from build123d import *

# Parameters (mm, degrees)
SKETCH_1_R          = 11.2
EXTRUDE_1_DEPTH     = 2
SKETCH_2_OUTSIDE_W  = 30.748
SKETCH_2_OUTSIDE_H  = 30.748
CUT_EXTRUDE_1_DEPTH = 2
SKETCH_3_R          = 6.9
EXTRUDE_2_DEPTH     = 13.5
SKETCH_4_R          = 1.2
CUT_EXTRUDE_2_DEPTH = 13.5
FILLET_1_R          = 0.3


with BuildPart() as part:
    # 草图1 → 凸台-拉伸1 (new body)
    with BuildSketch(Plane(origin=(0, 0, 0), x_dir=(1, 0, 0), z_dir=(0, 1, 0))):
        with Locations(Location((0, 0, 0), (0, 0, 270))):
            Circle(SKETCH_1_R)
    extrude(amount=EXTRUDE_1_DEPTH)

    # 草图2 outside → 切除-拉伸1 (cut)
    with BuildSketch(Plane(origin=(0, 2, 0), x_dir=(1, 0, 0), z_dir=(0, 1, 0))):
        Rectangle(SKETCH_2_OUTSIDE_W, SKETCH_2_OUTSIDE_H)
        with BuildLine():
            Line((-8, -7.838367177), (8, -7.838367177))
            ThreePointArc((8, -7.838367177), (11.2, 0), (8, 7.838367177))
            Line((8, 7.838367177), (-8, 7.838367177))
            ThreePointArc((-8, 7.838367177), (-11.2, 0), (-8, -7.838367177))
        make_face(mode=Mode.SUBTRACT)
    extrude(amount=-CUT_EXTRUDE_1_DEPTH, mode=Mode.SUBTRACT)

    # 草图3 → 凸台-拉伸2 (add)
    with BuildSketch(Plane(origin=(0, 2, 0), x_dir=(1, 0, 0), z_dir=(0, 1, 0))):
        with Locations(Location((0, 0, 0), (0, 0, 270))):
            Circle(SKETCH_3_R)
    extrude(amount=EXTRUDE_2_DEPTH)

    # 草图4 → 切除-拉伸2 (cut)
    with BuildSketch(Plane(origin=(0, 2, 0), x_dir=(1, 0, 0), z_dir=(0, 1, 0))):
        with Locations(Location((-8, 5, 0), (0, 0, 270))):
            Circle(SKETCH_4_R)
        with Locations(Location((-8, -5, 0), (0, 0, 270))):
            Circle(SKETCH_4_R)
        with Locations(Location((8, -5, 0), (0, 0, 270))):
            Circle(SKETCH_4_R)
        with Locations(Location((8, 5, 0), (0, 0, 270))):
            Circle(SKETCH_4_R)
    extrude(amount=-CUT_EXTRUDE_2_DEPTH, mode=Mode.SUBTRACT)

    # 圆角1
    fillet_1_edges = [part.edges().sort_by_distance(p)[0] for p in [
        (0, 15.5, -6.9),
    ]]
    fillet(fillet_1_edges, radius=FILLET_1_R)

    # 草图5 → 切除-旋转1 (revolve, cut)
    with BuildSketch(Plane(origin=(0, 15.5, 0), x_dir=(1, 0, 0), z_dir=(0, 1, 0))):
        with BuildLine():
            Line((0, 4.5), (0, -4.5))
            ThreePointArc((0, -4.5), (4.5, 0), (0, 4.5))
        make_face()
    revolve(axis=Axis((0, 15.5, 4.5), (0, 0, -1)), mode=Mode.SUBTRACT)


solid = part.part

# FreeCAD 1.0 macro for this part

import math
import FreeCAD as App
import Part
import Sketcher

V = App.Vector


def edges_at(feature, points):
    """Names of the edges that pass closest to the given points."""
    edges = feature.Shape.Edges
    near = lambda p: min(range(len(edges)), key=lambda i: edges[i].distToShape(Part.Vertex(*p))[0])
    return sorted({f"Edge{near(p) + 1}" for p in points})


def add_polygon(sketch, points):
    """Adds a closed chain of lines whose ends are joined by coincident constraints."""
    first, n = sketch.GeometryCount, len(points)
    for a, b in zip(points, points[1:] + points[:1]):
        sketch.addGeometry(Part.LineSegment(App.Vector(*a, 0), App.Vector(*b, 0)), False)
    for i in range(n):
        sketch.addConstraint(Sketcher.Constraint("Coincident", first + i, 2, first + (i + 1) % n, 1))

doc = App.newDocument("Part")
body = doc.addObject("PartDesign::Body", "Body")

# Sketch on XZ plane
sketch1 = body.newObject("Sketcher::SketchObject", "Sketch")
sketch1.AttachmentSupport = (doc.getObject("XZ_Plane"), [""])
sketch1.MapMode = "FlatFace"
sketch1.addGeometry(Part.Circle(V(0, 0, 0), V(0, 0, 1), 11.2), False)
sketch1.addConstraint([
    Sketcher.Constraint("Coincident", 0, 3, -1, 1),
    Sketcher.Constraint("Diameter", 0, 22.4),
])
pad1 = body.newObject("PartDesign::Pad", "Pad")
pad1.Profile = sketch1
pad1.Length = 2
pad1.Reversed = True

# Sketch on XZ plane
sketch2 = body.newObject("Sketcher::SketchObject", "Sketch001")
sketch2.AttachmentSupport = (doc.getObject("XZ_Plane"), [""])
sketch2.MapMode = "FlatFace"
sketch2.AttachmentOffset = App.Placement(V(0, 0, -2), App.Rotation())
add_polygon(sketch2, [(-15.374, -15.374), (-15.374, 15.374), (15.374, 15.374), (15.374, -15.374)])  # lines 0-3
sketch2.addGeometry(Part.LineSegment(V(8, 7.838367, 0), V(-8, 7.838367, 0)), False)  # 4
sketch2.addGeometry(Part.ArcOfCircle(Part.Circle(V(0, 0, 0), V(0, 0, 1), 11.2), math.radians(135.584691), math.radians(224.415309)), False)  # 5
sketch2.addGeometry(Part.LineSegment(V(-8, -7.838367, 0), V(8, -7.838367, 0)), False)  # 6
sketch2.addGeometry(Part.ArcOfCircle(Part.Circle(V(0, 0, 0), V(0, 0, 1), 11.2), math.radians(-44.415309), math.radians(44.415309)), False)  # 7
sketch2.addConstraint([
    Sketcher.Constraint("Coincident", 4, 2, 5, 1),
    Sketcher.Constraint("Coincident", 5, 2, 6, 1),
    Sketcher.Constraint("Coincident", 6, 2, 7, 1),
    Sketcher.Constraint("Coincident", 7, 2, 4, 1),
    Sketcher.Constraint("Vertical", 0),
    Sketcher.Constraint("Horizontal", 1),
    Sketcher.Constraint("Vertical", 2),
    Sketcher.Constraint("Horizontal", 3),
    Sketcher.Constraint("Horizontal", 4),
    Sketcher.Constraint("Horizontal", 6),
    Sketcher.Constraint("Coincident", 5, 3, -1, 1),
    Sketcher.Constraint("Coincident", 7, 3, -1, 1),
    Sketcher.Constraint("Equal", 5, 7),
    Sketcher.Constraint("Symmetric", 0, 2, 2, 2, -1, 1),
    Sketcher.Constraint("Vertical", 4, 2, 5, 2),
    Sketcher.Constraint("Equal", 3, 0),
    Sketcher.Constraint("Radius", 5, 11.2),
    Sketcher.Constraint("DistanceX", 4, 2, 4, 1, 16.0),
    Sketcher.Constraint("DistanceX", 1, 1, 1, 2, 30.748),
])
pocket1 = body.newObject("PartDesign::Pocket", "Pocket")
pocket1.Profile = sketch2
pocket1.Length = 2
pocket1.Reversed = True

# Sketch on XZ plane
sketch3 = body.newObject("Sketcher::SketchObject", "Sketch002")
sketch3.AttachmentSupport = (doc.getObject("XZ_Plane"), [""])
sketch3.MapMode = "FlatFace"
sketch3.AttachmentOffset = App.Placement(V(0, 0, -2), App.Rotation())
sketch3.addGeometry(Part.Circle(V(0, 0, 0), V(0, 0, 1), 6.9), False)
sketch3.addConstraint([
    Sketcher.Constraint("Coincident", 0, 3, -1, 1),
    Sketcher.Constraint("Diameter", 0, 13.8),
])
pad2 = body.newObject("PartDesign::Pad", "Pad001")
pad2.Profile = sketch3
pad2.Length = 13.5
pad2.Reversed = True

# Sketch on XZ plane
sketch4 = body.newObject("Sketcher::SketchObject", "Sketch003")
sketch4.AttachmentSupport = (doc.getObject("XZ_Plane"), [""])
sketch4.MapMode = "FlatFace"
sketch4.AttachmentOffset = App.Placement(V(0, 0, -2), App.Rotation())
sketch4.addGeometry([
    Part.Circle(V(-8, -5, 0), V(0, 0, 1), 1.2),
    Part.Circle(V(-8, 5, 0), V(0, 0, 1), 1.2),
    Part.Circle(V(8, 5, 0), V(0, 0, 1), 1.2),
    Part.Circle(V(8, -5, 0), V(0, 0, 1), 1.2),
], False)
sketch4.addConstraint([
    Sketcher.Constraint("Equal", 0, 1),
    Sketcher.Constraint("Equal", 1, 2),
    Sketcher.Constraint("Equal", 2, 3),
    Sketcher.Constraint("Symmetric", 0, 3, 2, 3, -1, 1),
    Sketcher.Constraint("Symmetric", 1, 3, 3, 3, -1, 1),
    Sketcher.Constraint("Symmetric", 1, 3, 2, 3, -2),
    Sketcher.Constraint("Diameter", 0, 2.4),
    Sketcher.Constraint("DistanceX", 0, 3, -1, 1, 8.0),
    Sketcher.Constraint("DistanceY", 0, 3, -1, 1, 5.0),
])
pocket2 = body.newObject("PartDesign::Pocket", "Pocket001")
pocket2.Profile = sketch4
pocket2.Length = 13.5
pocket2.Reversed = True
doc.recompute()

fillet = body.newObject("PartDesign::Fillet", "Fillet")
fillet.Base = (pocket2, edges_at(pocket2, [(0, 15.5, -6.9)]))
fillet.Radius = 0.3

# Sketch on XZ plane
sketch5 = body.newObject("Sketcher::SketchObject", "Sketch004")
sketch5.AttachmentSupport = (doc.getObject("XZ_Plane"), [""])
sketch5.MapMode = "FlatFace"
sketch5.AttachmentOffset = App.Placement(V(0, 0, -15.5), App.Rotation())
sketch5.addGeometry([
    Part.LineSegment(V(0, -4.5, 0), V(0, 4.5, 0)),
    Part.ArcOfCircle(Part.Circle(V(0, 0, 0), V(0, 0, 1), 4.5), math.radians(-90), math.radians(90)),
], False)
sketch5.addConstraint([
    Sketcher.Constraint("Coincident", 0, 1, 1, 1),
    Sketcher.Constraint("Coincident", 1, 2, 0, 2),
    Sketcher.Constraint("Vertical", 0),
    Sketcher.Constraint("Coincident", 1, 3, -1, 1),
    Sketcher.Constraint("PointOnObject", 0, 1, -2),
    Sketcher.Constraint("Radius", 1, 4.5),
])
groove = body.newObject("PartDesign::Groove", "Groove")
groove.Profile = sketch5
groove.ReferenceAxis = (sketch5, ["V_Axis"])
groove.Angle = 360

doc.recompute()
